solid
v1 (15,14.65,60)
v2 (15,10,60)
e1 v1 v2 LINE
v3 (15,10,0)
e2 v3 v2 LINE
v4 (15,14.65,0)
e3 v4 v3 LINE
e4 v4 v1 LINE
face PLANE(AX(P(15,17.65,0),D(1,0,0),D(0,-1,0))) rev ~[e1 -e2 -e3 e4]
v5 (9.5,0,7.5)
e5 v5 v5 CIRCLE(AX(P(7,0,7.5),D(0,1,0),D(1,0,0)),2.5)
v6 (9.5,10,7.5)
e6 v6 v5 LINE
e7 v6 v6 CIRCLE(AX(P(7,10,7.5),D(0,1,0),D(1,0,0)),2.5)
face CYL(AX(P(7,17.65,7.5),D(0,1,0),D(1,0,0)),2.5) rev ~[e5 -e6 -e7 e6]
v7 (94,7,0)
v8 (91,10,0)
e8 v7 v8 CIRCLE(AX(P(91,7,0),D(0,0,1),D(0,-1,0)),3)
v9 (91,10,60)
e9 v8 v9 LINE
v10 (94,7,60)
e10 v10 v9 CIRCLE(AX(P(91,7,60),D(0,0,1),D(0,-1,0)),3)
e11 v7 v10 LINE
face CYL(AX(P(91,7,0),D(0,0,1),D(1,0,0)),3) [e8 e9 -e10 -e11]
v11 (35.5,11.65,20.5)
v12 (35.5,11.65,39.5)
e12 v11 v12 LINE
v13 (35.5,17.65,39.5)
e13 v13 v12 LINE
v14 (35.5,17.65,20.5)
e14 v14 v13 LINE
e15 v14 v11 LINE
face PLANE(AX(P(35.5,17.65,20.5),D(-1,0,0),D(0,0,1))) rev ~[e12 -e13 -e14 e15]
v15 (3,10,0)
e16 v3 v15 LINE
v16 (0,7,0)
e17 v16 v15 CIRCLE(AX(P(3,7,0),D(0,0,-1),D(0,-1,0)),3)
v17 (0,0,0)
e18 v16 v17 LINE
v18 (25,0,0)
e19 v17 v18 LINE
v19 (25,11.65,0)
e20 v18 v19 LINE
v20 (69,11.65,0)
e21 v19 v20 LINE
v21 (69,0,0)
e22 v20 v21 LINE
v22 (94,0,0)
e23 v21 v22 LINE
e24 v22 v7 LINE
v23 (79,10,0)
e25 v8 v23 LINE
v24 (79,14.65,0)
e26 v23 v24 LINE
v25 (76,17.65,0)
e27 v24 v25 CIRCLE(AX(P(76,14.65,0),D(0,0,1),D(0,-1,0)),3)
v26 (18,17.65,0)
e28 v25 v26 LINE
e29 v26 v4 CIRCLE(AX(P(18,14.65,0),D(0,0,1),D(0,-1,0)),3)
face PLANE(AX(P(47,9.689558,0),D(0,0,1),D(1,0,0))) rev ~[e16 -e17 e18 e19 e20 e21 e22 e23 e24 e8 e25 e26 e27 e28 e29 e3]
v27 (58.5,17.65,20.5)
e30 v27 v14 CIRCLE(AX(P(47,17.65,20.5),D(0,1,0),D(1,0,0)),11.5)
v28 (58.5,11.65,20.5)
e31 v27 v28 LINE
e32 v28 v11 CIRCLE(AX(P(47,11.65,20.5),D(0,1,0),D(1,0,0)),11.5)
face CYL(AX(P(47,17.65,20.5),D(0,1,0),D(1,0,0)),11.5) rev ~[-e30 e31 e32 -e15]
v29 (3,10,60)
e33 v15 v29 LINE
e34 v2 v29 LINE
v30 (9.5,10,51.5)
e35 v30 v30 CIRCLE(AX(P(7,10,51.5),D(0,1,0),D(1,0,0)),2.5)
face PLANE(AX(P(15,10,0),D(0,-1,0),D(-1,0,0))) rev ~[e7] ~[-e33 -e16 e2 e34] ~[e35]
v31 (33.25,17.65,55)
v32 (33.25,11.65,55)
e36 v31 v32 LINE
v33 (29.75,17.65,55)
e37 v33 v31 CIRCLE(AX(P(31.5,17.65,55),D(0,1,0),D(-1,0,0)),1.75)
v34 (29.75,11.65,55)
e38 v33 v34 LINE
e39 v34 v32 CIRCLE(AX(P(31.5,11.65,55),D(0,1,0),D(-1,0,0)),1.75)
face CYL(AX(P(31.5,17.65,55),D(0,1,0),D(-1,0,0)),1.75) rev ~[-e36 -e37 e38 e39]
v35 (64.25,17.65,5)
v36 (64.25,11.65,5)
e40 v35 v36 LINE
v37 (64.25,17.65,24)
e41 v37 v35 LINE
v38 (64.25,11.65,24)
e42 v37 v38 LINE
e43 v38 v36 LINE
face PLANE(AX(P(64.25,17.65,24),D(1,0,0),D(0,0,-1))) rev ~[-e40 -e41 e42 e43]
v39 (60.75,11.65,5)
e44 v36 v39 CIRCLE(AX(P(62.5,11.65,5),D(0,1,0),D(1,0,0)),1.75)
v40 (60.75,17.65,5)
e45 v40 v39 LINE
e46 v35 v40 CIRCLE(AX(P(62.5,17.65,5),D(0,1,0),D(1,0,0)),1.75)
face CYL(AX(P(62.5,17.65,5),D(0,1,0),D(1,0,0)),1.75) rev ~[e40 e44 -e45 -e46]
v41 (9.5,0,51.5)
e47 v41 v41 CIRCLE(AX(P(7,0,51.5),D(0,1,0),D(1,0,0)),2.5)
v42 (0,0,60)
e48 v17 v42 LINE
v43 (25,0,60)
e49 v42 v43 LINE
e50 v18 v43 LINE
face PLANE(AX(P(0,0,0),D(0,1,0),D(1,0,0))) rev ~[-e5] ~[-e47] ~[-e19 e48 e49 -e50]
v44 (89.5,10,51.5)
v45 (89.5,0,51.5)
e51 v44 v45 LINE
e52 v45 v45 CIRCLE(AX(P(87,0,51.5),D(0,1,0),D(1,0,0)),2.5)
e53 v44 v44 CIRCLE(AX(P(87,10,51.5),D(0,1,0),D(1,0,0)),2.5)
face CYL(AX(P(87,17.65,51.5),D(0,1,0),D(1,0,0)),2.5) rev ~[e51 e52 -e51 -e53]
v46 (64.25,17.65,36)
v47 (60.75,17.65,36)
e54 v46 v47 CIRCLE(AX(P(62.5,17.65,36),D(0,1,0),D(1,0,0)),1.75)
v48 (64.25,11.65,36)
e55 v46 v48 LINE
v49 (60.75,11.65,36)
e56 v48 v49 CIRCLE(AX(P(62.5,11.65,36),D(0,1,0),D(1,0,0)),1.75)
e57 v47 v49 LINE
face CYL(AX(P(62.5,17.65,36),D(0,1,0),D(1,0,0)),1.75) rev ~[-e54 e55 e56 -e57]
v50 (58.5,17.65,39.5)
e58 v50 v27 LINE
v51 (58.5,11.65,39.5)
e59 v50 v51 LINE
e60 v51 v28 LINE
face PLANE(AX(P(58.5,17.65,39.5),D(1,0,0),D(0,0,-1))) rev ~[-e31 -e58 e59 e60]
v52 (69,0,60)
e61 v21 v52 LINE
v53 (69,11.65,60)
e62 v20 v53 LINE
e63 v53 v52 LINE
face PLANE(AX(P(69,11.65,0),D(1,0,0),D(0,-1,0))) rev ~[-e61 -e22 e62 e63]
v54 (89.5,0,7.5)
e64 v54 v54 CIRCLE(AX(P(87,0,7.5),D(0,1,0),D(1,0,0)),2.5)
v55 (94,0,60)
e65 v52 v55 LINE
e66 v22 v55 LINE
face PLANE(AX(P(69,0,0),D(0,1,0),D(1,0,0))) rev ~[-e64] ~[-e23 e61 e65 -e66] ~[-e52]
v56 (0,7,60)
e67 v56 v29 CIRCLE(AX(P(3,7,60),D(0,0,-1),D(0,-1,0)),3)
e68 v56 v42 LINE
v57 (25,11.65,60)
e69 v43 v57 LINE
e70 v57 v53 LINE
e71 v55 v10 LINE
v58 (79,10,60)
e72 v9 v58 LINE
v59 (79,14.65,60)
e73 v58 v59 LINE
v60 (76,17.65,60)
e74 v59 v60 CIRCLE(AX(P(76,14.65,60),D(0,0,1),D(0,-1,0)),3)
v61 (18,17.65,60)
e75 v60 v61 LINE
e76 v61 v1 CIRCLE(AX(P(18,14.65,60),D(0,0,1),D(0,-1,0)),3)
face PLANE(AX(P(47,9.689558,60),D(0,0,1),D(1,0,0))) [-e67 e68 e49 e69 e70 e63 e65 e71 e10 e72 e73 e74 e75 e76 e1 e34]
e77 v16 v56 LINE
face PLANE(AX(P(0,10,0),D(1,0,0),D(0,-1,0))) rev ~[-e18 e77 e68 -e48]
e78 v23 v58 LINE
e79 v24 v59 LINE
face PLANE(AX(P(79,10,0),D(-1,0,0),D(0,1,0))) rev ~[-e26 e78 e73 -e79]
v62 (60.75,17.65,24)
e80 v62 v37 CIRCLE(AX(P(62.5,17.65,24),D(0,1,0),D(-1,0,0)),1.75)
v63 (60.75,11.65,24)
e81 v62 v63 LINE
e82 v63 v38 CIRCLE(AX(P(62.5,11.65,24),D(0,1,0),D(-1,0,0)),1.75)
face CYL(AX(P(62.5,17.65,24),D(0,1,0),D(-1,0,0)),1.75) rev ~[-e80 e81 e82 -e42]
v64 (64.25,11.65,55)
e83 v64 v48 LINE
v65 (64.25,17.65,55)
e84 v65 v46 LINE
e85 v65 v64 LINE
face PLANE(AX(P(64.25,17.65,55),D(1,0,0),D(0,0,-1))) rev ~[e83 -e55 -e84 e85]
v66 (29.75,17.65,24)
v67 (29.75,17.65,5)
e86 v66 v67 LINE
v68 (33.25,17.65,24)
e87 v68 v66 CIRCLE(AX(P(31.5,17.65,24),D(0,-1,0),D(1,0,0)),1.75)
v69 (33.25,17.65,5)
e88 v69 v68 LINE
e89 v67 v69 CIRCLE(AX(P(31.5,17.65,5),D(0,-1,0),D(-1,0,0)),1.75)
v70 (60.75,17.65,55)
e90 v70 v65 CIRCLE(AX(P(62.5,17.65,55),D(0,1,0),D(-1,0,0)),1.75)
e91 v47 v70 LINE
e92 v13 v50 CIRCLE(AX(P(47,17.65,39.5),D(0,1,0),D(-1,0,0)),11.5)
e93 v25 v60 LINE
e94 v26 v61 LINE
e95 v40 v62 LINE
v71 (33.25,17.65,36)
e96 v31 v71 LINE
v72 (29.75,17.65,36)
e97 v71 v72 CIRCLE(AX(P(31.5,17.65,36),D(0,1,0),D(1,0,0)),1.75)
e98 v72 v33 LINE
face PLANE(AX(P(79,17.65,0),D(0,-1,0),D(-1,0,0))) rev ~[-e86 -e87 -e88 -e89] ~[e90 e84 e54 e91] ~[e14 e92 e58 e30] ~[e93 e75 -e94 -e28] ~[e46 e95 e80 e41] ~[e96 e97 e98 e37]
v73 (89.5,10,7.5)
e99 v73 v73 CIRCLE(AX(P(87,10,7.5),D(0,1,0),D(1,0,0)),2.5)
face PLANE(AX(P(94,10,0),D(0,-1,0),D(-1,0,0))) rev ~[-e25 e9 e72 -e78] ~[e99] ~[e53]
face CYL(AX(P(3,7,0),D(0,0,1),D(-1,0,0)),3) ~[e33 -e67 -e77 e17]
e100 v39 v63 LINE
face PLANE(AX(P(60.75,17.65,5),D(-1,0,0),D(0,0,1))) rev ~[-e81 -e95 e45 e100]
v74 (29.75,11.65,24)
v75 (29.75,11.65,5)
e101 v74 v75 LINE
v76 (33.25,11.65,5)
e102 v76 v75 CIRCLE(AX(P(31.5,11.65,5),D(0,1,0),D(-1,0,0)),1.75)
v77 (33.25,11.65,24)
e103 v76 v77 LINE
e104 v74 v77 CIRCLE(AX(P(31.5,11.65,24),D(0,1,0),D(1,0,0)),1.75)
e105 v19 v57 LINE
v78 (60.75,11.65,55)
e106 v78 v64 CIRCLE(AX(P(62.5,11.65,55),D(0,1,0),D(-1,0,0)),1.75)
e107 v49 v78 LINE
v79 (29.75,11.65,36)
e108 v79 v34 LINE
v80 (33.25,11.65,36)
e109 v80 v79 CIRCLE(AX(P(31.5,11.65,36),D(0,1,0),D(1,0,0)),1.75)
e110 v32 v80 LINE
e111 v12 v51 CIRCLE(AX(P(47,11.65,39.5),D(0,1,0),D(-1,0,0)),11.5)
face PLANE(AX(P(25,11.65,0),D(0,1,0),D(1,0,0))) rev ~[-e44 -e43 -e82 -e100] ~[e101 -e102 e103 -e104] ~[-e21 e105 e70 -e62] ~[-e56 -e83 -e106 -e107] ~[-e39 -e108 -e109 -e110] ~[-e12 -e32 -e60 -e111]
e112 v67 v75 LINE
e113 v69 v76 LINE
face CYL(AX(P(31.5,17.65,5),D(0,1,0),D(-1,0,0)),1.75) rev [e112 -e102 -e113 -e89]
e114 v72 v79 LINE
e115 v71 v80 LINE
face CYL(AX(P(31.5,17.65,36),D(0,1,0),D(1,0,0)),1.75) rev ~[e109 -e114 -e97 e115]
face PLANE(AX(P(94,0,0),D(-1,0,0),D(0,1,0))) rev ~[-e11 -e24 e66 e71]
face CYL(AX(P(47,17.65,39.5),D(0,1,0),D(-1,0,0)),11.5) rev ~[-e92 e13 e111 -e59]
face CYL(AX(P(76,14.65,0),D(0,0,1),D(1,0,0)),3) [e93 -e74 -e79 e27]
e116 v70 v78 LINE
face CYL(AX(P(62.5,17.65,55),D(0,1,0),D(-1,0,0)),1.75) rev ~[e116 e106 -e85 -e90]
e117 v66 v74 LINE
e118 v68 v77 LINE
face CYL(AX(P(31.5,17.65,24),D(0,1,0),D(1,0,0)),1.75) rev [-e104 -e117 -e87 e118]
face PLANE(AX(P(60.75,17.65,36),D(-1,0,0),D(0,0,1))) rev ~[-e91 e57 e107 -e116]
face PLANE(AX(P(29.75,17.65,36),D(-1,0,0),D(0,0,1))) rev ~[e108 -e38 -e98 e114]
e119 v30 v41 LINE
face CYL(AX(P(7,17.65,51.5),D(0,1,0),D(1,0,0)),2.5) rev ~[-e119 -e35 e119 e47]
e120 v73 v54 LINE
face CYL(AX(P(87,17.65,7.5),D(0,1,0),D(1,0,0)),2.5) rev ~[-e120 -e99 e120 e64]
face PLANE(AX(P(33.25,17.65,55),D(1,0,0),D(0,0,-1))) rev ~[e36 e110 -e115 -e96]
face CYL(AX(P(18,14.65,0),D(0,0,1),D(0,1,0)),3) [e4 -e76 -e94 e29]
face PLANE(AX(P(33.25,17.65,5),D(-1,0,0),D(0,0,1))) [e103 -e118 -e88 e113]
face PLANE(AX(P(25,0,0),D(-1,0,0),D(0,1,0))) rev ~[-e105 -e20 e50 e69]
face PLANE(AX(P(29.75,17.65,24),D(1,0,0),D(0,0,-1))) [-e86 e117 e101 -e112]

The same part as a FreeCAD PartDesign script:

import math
import FreeCAD as App
import Part
import Sketcher


def edges_at(feature, points):
    """Names of the edges that pass closest to the given points."""
    edges = feature.Shape.Edges
    near = lambda p: min(range(len(edges)), key=lambda i: edges[i].distToShape(Part.Vertex(*p))[0])
    return sorted({f"Edge{near(p) + 1}" for p in points})


def add_polygon(sketch, points):
    """Adds a closed chain of lines whose ends are joined by coincident constraints."""
    first, n = sketch.GeometryCount, len(points)
    for a, b in zip(points, points[1:] + points[:1]):
        sketch.addGeometry(Part.LineSegment(App.Vector(*a, 0), App.Vector(*b, 0)), False)
    for i in range(n):
        sketch.addConstraint(Sketcher.Constraint("Coincident", first + i, 2, first + (i + 1) % n, 1))

doc = App.newDocument("Part")
body = doc.addObject("PartDesign::Body", "Body")

sketch1 = body.newObject("Sketcher::SketchObject", "Sketch")
sketch1.AttachmentSupport = (doc.getObject("XY_Plane"), [""])
sketch1.MapMode = "FlatFace"
add_polygon(sketch1, [(0, 0), (25, 0), (25, 12), (69, 12), (69, 0), (94, 0), (94, 10), (79, 10), (79, 18), (15, 18), (15, 10), (0, 10)])
sketch1.addConstraint([
    Sketcher.Constraint("Horizontal", 0),
    Sketcher.Constraint("Vertical", 1),
    Sketcher.Constraint("Horizontal", 2),
    Sketcher.Constraint("Vertical", 3),
    Sketcher.Constraint("Horizontal", 4),
    Sketcher.Constraint("Vertical", 5),
    Sketcher.Constraint("Horizontal", 6),
    Sketcher.Constraint("Vertical", 7),
    Sketcher.Constraint("Horizontal", 8),
    Sketcher.Constraint("Vertical", 9),
    Sketcher.Constraint("Horizontal", 10),
    Sketcher.Constraint("Vertical", 11),
    Sketcher.Constraint("Coincident", 11, 2, -1, 1),
    Sketcher.Constraint("PointOnObject", 3, 2, -1),
    Sketcher.Constraint("Horizontal", 6, 2, 9, 2),
    Sketcher.Constraint("Equal", 0, 4),
    Sketcher.Constraint("Equal", 6, 10),
    Sketcher.Constraint("DistanceX", 0, 1, 0, 2, 25.0),
    Sketcher.Constraint("DistanceX", 2, 1, 2, 2, 44.0),
    Sketcher.Constraint("DistanceX", 6, 2, 6, 1, 15.0),
    Sketcher.Constraint("DistanceY", 5, 1, 5, 2, 10.0),
    Sketcher.Constraint("DistanceY", 2, 2, 7, 2, 6.0),
    Sketcher.Constraint("DistanceY", 1, 1, 1, 2, 11.65),
])
pad1 = body.newObject("PartDesign::Pad", "Pad")
pad1.Profile = sketch1
pad1.Length = 60

sketch2 = body.newObject("Sketcher::SketchObject", "Sketch001")
sketch2.AttachmentSupport = (doc.getObject("XZ_Plane"), [""])
sketch2.MapMode = "FlatFace"
sketch2.AttachmentOffset = App.Placement(App.Vector(0, 0, -17.65), App.Rotation())
sketch2.addGeometry([
    Part.Circle(App.Vector(7, 7.5, 0), App.Vector(0, 0, 1), 2.5),
    Part.Circle(App.Vector(7, 51.5, 0), App.Vector(0, 0, 1), 2.5),
    Part.Circle(App.Vector(87, 7.5, 0), App.Vector(0, 0, 1), 2.5),
    Part.Circle(App.Vector(87, 51.5, 0), App.Vector(0, 0, 1), 2.5),
    Part.LineSegment(App.Vector(29.8, 36, 0), App.Vector(29.8, 55, 0)),
    Part.ArcOfCircle(Part.Circle(App.Vector(31.5, 55, 0), App.Vector(0, 0, 1), 1.8), math.radians(0), math.radians(180)),
    Part.LineSegment(App.Vector(33.2, 55, 0), App.Vector(33.2, 36, 0)),
    Part.ArcOfCircle(Part.Circle(App.Vector(31.5, 36, 0), App.Vector(0, 0, 1), 1.8), math.radians(180), math.radians(360)),
    Part.LineSegment(App.Vector(29.8, 5, 0), App.Vector(29.8, 24, 0)),
    Part.ArcOfCircle(Part.Circle(App.Vector(31.5, 24, 0), App.Vector(0, 0, 1), 1.8), math.radians(0), math.radians(180)),
    Part.LineSegment(App.Vector(33.2, 24, 0), App.Vector(33.2, 5, 0)),
    Part.ArcOfCircle(Part.Circle(App.Vector(31.5, 5, 0), App.Vector(0, 0, 1), 1.8), math.radians(180), math.radians(360)),
    Part.LineSegment(App.Vector(60.8, 5, 0), App.Vector(60.8, 24, 0)),
    Part.ArcOfCircle(Part.Circle(App.Vector(62.5, 24, 0), App.Vector(0, 0, 1), 1.8), math.radians(0), math.radians(180)),
    Part.LineSegment(App.Vector(64.2, 24, 0), App.Vector(64.2, 5, 0)),
    Part.ArcOfCircle(Part.Circle(App.Vector(62.5, 5, 0), App.Vector(0, 0, 1), 1.8), math.radians(180), math.radians(360)),
    Part.LineSegment(App.Vector(60.8, 36, 0), App.Vector(60.8, 55, 0)),
    Part.ArcOfCircle(Part.Circle(App.Vector(62.5, 55, 0), App.Vector(0, 0, 1), 1.8), math.radians(0), math.radians(180)),
    Part.LineSegment(App.Vector(64.2, 55, 0), App.Vector(64.2, 36, 0)),
    Part.ArcOfCircle(Part.Circle(App.Vector(62.5, 36, 0), App.Vector(0, 0, 1), 1.8), math.radians(180), math.radians(360)),
    Part.LineSegment(App.Vector(35.5, 20.5, 0), App.Vector(35.5, 39.5, 0)),
    Part.ArcOfCircle(Part.Circle(App.Vector(47, 39.5, 0), App.Vector(0, 0, 1), 11.5), math.radians(0), math.radians(180)),
    Part.LineSegment(App.Vector(58.5, 39.5, 0), App.Vector(58.5, 20.5, 0)),
    Part.ArcOfCircle(Part.Circle(App.Vector(47, 20.5, 0), App.Vector(0, 0, 1), 11.5), math.radians(180), math.radians(360)),
], False)
sketch2.addConstraint([
    Sketcher.Constraint("Tangent", 4, 2, 5, 2),
    Sketcher.Constraint("Tangent", 5, 1, 6, 1),
    Sketcher.Constraint("Tangent", 6, 2, 7, 2),
    Sketcher.Constraint("Tangent", 7, 1, 4, 1),
    Sketcher.Constraint("Tangent", 8, 2, 9, 2),
    Sketcher.Constraint("Tangent", 9, 1, 10, 1),
    Sketcher.Constraint("Tangent", 10, 2, 11, 2),
    Sketcher.Constraint("Tangent", 11, 1, 8, 1),
    Sketcher.Constraint("Tangent", 12, 2, 13, 2),
    Sketcher.Constraint("Tangent", 13, 1, 14, 1),
    Sketcher.Constraint("Tangent", 14, 2, 15, 2),
    Sketcher.Constraint("Tangent", 15, 1, 12, 1),
    Sketcher.Constraint("Tangent", 16, 2, 17, 2),
    Sketcher.Constraint("Tangent", 17, 1, 18, 1),
    Sketcher.Constraint("Tangent", 18, 2, 19, 2),
    Sketcher.Constraint("Tangent", 19, 1, 16, 1),
    Sketcher.Constraint("Tangent", 20, 2, 21, 2),
    Sketcher.Constraint("Tangent", 21, 1, 22, 1),
    Sketcher.Constraint("Tangent", 22, 2, 23, 2),
    Sketcher.Constraint("Tangent", 23, 1, 20, 1),
    Sketcher.Constraint("Vertical", 4),
    Sketcher.Constraint("Vertical", 6),
    Sketcher.Constraint("Vertical", 8),
    Sketcher.Constraint("Vertical", 10),
    Sketcher.Constraint("Vertical", 12),
    Sketcher.Constraint("Vertical", 14),
    Sketcher.Constraint("Vertical", 16),
    Sketcher.Constraint("Vertical", 18),
    Sketcher.Constraint("Vertical", 20),
    Sketcher.Constraint("Vertical", 22),
    Sketcher.Constraint("Equal", 0, 1),
    Sketcher.Constraint("Equal", 1, 2),
    Sketcher.Constraint("Equal", 2, 3),
    Sketcher.Constraint("Equal", 7, 9),
    Sketcher.Constraint("Equal", 11, 13),
    Sketcher.Constraint("Equal", 15, 17),
    Sketcher.Constraint("Horizontal", 0, 3, 2, 3),
    Sketcher.Constraint("Horizontal", 1, 3, 3, 3),
    Sketcher.Constraint("Horizontal", 9, 3, 13, 3),
    Sketcher.Constraint("Horizontal", 11, 3, 15, 3),
    Sketcher.Constraint("Horizontal", 5, 3, 17, 3),
    Sketcher.Constraint("Horizontal", 7, 3, 19, 3),
    Sketcher.Constraint("Vertical", 0, 3, 1, 3),
    Sketcher.Constraint("Vertical", 2, 3, 3, 3),
    Sketcher.Constraint("Vertical", 7, 3, 9, 3),
    Sketcher.Constraint("Vertical", 15, 3, 17, 3),
    Sketcher.Constraint("Equal", 6, 8),
    Sketcher.Constraint("Equal", 18, 20),
    Sketcher.Constraint("Diameter", 0, 5.0),
    Sketcher.Constraint("Radius", 21, 11.5),
    Sketcher.Constraint("DistanceY", 4, 1, 4, 2, 19.0),
    Sketcher.Constraint("Radius", 5, 1.75),
    Sketcher.Constraint("DistanceX", -1, 1, 0, 3, 7.0),
    Sketcher.Constraint("DistanceX", -1, 1, 2, 3, 87.0),
    Sketcher.Constraint("DistanceY", -1, 1, 5, 3, 55.0),
    Sketcher.Constraint("DistanceY", -1, 1, 9, 3, 24.0),
    Sketcher.Constraint("DistanceX", -1, 1, 21, 3, 47.0),
    Sketcher.Constraint("DistanceY", 0, 3, 1, 3, 44.0),
    Sketcher.Constraint("DistanceX", 9, 3, 13, 3, 31.0),
    Sketcher.Constraint("DistanceX", 7, 3, 20, 2, 4.0),
    Sketcher.Constraint("DistanceY", -1, 1, 0, 3, 7.5),
    Sketcher.Constraint("DistanceY", -1, 1, 21, 3, 39.5),
])
pocket1 = body.newObject("PartDesign::Pocket", "Pocket")
pocket1.Profile = sketch2
pocket1.Type = "ThroughAll"
pocket1.Reversed = True
doc.recompute()

fillet = body.newObject("PartDesign::Fillet", "Fillet")
fillet.Base = (pocket1, edges_at(pocket1, [
    (0, 10, 30),
    (15, 17.65, 30),
    (79, 17.65, 30),
    (94, 10, 30),
]))
fillet.Radius = 3

doc.recompute()
